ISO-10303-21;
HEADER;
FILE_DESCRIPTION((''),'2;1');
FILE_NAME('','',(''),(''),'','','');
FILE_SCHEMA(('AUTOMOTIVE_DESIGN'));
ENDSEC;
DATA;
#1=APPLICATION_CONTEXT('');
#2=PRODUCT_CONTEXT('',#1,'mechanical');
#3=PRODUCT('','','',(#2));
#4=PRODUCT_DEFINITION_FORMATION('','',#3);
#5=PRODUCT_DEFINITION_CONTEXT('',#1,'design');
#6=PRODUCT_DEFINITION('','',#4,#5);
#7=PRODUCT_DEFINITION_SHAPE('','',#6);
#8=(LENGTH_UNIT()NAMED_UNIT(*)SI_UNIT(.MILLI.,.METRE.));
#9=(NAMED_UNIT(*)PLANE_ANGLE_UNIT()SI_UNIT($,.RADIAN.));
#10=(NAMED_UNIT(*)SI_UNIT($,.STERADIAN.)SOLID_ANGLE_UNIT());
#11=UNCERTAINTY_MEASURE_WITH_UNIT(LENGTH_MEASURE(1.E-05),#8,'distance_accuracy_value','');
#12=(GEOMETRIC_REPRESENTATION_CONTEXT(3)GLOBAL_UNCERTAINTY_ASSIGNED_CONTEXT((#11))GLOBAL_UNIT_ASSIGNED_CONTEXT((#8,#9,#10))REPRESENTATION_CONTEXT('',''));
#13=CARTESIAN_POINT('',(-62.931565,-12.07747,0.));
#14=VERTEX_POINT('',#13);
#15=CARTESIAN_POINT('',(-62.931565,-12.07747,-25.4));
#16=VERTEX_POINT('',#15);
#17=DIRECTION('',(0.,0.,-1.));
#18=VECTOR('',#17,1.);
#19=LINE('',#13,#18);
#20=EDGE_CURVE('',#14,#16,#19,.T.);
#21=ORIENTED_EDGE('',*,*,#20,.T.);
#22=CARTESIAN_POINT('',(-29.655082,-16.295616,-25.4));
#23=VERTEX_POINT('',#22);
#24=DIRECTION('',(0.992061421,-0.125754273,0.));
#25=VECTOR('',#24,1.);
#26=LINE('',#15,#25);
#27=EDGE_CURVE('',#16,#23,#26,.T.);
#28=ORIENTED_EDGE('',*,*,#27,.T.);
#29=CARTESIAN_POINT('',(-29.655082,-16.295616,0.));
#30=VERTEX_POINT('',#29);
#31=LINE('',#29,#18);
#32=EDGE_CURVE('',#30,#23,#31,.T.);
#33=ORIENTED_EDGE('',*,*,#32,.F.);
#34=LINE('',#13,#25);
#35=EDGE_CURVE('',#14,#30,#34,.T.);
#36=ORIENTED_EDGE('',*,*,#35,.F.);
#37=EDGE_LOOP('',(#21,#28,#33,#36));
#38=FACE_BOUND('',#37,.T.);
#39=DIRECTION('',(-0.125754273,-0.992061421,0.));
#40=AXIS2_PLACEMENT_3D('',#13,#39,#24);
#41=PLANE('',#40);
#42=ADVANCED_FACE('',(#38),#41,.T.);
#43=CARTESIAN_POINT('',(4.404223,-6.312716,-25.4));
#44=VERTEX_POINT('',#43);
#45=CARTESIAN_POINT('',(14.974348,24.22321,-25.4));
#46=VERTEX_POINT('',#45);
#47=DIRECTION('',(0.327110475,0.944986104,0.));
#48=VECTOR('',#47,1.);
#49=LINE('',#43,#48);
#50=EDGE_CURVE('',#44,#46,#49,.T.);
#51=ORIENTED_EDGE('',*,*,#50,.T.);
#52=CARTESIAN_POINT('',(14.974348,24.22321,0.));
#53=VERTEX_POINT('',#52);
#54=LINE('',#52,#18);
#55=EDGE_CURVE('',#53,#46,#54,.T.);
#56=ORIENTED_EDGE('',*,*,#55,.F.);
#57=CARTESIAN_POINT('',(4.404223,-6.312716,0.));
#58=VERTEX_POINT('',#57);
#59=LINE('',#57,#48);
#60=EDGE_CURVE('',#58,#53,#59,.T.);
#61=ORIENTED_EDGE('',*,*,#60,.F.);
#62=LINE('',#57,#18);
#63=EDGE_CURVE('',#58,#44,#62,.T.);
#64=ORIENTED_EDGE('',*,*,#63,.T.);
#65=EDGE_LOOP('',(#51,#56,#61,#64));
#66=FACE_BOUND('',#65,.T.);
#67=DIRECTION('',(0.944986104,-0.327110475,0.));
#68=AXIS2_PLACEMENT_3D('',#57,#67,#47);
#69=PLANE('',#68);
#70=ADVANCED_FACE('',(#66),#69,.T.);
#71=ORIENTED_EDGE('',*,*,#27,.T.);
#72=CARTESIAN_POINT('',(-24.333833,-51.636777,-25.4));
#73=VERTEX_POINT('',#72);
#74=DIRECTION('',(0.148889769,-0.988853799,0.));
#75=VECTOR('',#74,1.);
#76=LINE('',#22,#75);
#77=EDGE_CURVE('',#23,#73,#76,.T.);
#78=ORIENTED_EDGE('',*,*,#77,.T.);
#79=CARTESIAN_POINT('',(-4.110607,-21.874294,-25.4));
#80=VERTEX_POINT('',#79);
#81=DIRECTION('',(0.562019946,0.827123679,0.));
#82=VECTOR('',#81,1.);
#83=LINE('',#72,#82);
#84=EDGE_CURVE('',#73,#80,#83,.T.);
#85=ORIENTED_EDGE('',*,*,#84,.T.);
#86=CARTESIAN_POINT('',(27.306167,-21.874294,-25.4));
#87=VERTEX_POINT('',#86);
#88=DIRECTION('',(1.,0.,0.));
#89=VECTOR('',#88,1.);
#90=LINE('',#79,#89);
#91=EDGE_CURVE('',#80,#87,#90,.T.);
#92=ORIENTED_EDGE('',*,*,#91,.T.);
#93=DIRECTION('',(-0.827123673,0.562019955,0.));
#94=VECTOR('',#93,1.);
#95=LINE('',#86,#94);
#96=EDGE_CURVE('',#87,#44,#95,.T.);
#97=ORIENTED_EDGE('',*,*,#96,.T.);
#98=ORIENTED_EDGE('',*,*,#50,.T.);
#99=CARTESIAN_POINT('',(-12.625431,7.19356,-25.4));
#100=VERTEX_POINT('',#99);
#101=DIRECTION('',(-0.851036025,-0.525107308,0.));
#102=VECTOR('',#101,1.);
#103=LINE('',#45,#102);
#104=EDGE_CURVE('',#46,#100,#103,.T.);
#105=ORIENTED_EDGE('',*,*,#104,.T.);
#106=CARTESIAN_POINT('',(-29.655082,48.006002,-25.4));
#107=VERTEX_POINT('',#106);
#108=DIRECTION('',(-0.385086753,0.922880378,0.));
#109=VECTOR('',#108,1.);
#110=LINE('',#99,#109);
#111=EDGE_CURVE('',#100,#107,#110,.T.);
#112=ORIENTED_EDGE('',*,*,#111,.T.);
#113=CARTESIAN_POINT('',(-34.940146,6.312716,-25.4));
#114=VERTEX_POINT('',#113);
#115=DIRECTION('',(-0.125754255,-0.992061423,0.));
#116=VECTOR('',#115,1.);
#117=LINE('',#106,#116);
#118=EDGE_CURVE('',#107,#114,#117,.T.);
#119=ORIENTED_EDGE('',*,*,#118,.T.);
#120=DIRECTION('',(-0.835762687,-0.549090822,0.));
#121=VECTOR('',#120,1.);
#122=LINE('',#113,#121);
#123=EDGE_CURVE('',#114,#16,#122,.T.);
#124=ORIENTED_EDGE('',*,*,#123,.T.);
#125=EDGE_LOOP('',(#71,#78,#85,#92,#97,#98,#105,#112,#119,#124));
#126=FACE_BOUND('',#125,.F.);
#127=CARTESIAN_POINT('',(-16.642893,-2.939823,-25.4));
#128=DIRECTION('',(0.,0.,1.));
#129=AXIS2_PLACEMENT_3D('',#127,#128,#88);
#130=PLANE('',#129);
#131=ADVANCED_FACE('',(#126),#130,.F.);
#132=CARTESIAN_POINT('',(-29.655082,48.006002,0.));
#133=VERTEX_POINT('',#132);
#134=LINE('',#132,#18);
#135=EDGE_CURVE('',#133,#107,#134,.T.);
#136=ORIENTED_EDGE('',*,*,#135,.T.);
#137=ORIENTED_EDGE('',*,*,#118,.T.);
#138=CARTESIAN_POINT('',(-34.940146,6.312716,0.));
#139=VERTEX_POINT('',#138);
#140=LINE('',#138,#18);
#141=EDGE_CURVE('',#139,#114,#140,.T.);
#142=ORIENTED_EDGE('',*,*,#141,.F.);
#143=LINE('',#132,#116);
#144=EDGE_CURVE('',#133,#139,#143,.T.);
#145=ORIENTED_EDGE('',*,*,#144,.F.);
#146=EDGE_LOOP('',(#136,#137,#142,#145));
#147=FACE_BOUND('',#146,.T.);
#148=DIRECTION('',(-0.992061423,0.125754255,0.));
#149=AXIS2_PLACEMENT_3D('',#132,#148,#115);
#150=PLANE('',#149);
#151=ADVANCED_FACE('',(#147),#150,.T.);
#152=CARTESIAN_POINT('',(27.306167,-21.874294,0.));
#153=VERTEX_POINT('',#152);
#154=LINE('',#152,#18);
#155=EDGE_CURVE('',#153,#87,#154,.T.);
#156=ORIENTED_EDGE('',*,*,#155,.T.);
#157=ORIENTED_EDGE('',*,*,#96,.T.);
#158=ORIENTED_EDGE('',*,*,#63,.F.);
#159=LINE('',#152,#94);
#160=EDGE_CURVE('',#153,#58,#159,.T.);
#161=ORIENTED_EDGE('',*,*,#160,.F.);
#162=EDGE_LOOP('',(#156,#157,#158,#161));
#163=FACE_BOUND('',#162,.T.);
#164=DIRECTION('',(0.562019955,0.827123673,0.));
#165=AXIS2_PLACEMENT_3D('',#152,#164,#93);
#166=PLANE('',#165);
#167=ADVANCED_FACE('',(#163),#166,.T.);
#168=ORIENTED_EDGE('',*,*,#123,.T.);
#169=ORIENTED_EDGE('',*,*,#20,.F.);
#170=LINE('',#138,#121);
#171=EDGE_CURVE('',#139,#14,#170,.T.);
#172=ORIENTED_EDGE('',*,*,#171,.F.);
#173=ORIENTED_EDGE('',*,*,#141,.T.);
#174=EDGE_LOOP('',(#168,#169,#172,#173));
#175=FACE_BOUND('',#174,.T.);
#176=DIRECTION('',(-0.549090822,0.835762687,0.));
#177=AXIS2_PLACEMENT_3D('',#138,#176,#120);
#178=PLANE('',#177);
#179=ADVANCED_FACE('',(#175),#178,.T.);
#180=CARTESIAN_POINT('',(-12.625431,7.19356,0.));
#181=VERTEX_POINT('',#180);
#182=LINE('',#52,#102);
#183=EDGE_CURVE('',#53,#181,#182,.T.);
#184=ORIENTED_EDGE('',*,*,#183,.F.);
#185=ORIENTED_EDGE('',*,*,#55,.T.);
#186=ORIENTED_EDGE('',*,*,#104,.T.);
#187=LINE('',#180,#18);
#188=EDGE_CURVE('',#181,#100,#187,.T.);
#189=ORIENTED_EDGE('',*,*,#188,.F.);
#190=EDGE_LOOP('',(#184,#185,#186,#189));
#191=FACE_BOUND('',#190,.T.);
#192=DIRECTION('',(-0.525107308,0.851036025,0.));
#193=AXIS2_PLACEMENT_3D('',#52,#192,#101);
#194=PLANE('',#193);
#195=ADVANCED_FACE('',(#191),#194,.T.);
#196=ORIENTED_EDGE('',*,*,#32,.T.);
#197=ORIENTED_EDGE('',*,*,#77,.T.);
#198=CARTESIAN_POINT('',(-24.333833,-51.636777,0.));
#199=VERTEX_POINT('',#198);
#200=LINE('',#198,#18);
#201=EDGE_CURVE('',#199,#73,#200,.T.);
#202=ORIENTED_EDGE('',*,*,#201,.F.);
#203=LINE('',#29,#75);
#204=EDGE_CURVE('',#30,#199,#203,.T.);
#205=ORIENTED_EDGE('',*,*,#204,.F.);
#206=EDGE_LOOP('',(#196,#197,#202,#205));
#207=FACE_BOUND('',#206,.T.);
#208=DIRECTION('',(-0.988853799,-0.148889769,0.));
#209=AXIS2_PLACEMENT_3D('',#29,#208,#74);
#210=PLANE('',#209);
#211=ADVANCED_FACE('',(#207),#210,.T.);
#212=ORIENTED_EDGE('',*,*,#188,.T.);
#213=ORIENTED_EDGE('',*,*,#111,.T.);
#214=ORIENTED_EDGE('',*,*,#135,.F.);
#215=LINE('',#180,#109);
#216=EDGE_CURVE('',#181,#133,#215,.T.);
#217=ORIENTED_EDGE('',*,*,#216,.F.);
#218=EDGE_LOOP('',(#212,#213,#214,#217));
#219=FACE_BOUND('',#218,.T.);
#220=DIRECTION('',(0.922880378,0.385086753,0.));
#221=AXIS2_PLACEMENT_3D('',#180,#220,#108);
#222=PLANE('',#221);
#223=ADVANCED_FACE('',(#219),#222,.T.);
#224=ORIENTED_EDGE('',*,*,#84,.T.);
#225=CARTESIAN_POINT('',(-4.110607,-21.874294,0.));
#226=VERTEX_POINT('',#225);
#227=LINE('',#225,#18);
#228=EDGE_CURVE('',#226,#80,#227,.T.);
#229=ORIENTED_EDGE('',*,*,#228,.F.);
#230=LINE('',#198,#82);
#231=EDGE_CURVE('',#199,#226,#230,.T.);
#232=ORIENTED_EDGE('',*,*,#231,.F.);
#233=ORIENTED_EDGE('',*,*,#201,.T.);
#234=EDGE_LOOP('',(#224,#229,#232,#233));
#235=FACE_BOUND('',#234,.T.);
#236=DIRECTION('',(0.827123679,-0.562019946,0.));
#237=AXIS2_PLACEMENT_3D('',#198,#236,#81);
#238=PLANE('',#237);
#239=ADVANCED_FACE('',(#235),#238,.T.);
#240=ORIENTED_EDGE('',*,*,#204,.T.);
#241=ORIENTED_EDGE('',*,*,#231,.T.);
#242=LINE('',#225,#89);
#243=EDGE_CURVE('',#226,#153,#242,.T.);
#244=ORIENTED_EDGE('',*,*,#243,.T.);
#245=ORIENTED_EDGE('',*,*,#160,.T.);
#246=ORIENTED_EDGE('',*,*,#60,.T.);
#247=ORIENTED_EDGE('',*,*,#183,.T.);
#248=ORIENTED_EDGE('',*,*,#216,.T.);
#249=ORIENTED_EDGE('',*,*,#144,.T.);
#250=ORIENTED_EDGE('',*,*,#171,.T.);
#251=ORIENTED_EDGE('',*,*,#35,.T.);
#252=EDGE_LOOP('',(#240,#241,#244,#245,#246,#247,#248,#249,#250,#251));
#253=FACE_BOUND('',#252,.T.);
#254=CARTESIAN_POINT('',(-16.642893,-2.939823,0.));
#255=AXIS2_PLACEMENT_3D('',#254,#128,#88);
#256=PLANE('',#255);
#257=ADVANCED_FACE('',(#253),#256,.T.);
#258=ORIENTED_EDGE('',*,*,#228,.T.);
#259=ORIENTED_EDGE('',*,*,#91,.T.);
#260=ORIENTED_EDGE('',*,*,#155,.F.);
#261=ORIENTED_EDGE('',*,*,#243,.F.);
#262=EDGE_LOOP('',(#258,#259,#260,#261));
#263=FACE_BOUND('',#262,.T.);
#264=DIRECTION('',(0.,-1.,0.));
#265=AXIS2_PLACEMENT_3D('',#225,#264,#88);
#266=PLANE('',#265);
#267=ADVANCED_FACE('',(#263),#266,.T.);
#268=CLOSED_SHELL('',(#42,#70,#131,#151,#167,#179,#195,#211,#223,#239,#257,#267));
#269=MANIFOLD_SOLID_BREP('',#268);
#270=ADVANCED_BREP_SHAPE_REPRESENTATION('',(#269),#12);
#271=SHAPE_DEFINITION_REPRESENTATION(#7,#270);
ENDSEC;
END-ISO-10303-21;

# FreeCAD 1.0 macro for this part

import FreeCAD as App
import Part
import Sketcher
Q = App.Units.Quantity


def add_polygon(sketch, points):
    """Adds a closed chain of lines whose ends are joined by coincident constraints."""
    first, n = sketch.GeometryCount, len(points)
    for a, b in zip(points, points[1:] + points[:1]):
        sketch.addGeometry(Part.LineSegment(App.Vector(*a, 0), App.Vector(*b, 0)), False)
    for i in range(n):
        sketch.addConstraint(Sketcher.Constraint("Coincident", first + i, 2, first + (i + 1) % n, 1))

doc = App.newDocument("Part")
body = doc.addObject("PartDesign::Body", "Body")

sketch1 = body.newObject("Sketcher::SketchObject", "Sketch")
sketch1.AttachmentSupport = (doc.getObject("XY_Plane"), [""])
sketch1.MapMode = "FlatFace"
add_polygon(sketch1, [(-30, 48), (-35, 6), (-63, -12), (-30, -16), (-24, -52), (-4, -22), (27, -22), (4, -6), (15, 24), (-13, 7)])
sketch1.addConstraint(Sketcher.Constraint("Horizontal", 5))
sketch1.addConstraint(Sketcher.Constraint("Perpendicular", 0, 2))
sketch1.addConstraint(Sketcher.Constraint("Perpendicular", 4, 6))
sketch1.addConstraint(Sketcher.Constraint("Vertical", 2, 2, 9, 2))
sketch1.addConstraint(Sketcher.Constraint("DistanceY", -1, 1, 9, 2, Q("1.8900001 in")))
sketch1.addConstraint(Sketcher.Constraint("Distance", 8, 32.4308))
sketch1.addConstraint(Sketcher.Constraint("DistanceX", 3, 2, 5, 2, 51.64))
sketch1.addConstraint(Sketcher.Constraint("DistanceY", 2, 2, 6, 2, 9.9829))
sketch1.addConstraint(Sketcher.Constraint("Distance", 0, 42.02692))
sketch1.addConstraint(Sketcher.Constraint("Distance", 3, 35.739521))
sketch1.addConstraint(Sketcher.Constraint("Distance", 4, 35.983111))
sketch1.addConstraint(Sketcher.Constraint("DistanceX", 5, 1, 5, 2, 31.416774))
sketch1.addConstraint(Sketcher.Constraint("DistanceY", 1, 2, -1, 1, 12.07747))
sketch1.addConstraint(Sketcher.Constraint("DistanceX", 2, 2, -1, 1, 29.655082))
sketch1.addConstraint(Sketcher.Constraint("DistanceX", -1, 1, 7, 2, 14.974348))
sketch1.addConstraint(Sketcher.Constraint("DistanceY", -1, 1, 7, 2, 24.22321))
sketch1.addConstraint(Sketcher.Constraint("DistanceX", 8, 2, -1, 1, 12.625431))
sketch1.addConstraint(Sketcher.Constraint("DistanceX", 1, 2, 0, 2, 27.991419))
sketch1.addConstraint(Sketcher.Constraint("DistanceY", 2, 2, 0, 2, 22.608332))
sketch1.addConstraint(Sketcher.Constraint("DistanceX", 2, 2, 3, 2, 5.321249))
pad1 = body.newObject("PartDesign::Pad", "Pad")
pad1.Profile = sketch1
pad1.Length = Q("1 in")
pad1.Reversed = True

doc.recompute()
